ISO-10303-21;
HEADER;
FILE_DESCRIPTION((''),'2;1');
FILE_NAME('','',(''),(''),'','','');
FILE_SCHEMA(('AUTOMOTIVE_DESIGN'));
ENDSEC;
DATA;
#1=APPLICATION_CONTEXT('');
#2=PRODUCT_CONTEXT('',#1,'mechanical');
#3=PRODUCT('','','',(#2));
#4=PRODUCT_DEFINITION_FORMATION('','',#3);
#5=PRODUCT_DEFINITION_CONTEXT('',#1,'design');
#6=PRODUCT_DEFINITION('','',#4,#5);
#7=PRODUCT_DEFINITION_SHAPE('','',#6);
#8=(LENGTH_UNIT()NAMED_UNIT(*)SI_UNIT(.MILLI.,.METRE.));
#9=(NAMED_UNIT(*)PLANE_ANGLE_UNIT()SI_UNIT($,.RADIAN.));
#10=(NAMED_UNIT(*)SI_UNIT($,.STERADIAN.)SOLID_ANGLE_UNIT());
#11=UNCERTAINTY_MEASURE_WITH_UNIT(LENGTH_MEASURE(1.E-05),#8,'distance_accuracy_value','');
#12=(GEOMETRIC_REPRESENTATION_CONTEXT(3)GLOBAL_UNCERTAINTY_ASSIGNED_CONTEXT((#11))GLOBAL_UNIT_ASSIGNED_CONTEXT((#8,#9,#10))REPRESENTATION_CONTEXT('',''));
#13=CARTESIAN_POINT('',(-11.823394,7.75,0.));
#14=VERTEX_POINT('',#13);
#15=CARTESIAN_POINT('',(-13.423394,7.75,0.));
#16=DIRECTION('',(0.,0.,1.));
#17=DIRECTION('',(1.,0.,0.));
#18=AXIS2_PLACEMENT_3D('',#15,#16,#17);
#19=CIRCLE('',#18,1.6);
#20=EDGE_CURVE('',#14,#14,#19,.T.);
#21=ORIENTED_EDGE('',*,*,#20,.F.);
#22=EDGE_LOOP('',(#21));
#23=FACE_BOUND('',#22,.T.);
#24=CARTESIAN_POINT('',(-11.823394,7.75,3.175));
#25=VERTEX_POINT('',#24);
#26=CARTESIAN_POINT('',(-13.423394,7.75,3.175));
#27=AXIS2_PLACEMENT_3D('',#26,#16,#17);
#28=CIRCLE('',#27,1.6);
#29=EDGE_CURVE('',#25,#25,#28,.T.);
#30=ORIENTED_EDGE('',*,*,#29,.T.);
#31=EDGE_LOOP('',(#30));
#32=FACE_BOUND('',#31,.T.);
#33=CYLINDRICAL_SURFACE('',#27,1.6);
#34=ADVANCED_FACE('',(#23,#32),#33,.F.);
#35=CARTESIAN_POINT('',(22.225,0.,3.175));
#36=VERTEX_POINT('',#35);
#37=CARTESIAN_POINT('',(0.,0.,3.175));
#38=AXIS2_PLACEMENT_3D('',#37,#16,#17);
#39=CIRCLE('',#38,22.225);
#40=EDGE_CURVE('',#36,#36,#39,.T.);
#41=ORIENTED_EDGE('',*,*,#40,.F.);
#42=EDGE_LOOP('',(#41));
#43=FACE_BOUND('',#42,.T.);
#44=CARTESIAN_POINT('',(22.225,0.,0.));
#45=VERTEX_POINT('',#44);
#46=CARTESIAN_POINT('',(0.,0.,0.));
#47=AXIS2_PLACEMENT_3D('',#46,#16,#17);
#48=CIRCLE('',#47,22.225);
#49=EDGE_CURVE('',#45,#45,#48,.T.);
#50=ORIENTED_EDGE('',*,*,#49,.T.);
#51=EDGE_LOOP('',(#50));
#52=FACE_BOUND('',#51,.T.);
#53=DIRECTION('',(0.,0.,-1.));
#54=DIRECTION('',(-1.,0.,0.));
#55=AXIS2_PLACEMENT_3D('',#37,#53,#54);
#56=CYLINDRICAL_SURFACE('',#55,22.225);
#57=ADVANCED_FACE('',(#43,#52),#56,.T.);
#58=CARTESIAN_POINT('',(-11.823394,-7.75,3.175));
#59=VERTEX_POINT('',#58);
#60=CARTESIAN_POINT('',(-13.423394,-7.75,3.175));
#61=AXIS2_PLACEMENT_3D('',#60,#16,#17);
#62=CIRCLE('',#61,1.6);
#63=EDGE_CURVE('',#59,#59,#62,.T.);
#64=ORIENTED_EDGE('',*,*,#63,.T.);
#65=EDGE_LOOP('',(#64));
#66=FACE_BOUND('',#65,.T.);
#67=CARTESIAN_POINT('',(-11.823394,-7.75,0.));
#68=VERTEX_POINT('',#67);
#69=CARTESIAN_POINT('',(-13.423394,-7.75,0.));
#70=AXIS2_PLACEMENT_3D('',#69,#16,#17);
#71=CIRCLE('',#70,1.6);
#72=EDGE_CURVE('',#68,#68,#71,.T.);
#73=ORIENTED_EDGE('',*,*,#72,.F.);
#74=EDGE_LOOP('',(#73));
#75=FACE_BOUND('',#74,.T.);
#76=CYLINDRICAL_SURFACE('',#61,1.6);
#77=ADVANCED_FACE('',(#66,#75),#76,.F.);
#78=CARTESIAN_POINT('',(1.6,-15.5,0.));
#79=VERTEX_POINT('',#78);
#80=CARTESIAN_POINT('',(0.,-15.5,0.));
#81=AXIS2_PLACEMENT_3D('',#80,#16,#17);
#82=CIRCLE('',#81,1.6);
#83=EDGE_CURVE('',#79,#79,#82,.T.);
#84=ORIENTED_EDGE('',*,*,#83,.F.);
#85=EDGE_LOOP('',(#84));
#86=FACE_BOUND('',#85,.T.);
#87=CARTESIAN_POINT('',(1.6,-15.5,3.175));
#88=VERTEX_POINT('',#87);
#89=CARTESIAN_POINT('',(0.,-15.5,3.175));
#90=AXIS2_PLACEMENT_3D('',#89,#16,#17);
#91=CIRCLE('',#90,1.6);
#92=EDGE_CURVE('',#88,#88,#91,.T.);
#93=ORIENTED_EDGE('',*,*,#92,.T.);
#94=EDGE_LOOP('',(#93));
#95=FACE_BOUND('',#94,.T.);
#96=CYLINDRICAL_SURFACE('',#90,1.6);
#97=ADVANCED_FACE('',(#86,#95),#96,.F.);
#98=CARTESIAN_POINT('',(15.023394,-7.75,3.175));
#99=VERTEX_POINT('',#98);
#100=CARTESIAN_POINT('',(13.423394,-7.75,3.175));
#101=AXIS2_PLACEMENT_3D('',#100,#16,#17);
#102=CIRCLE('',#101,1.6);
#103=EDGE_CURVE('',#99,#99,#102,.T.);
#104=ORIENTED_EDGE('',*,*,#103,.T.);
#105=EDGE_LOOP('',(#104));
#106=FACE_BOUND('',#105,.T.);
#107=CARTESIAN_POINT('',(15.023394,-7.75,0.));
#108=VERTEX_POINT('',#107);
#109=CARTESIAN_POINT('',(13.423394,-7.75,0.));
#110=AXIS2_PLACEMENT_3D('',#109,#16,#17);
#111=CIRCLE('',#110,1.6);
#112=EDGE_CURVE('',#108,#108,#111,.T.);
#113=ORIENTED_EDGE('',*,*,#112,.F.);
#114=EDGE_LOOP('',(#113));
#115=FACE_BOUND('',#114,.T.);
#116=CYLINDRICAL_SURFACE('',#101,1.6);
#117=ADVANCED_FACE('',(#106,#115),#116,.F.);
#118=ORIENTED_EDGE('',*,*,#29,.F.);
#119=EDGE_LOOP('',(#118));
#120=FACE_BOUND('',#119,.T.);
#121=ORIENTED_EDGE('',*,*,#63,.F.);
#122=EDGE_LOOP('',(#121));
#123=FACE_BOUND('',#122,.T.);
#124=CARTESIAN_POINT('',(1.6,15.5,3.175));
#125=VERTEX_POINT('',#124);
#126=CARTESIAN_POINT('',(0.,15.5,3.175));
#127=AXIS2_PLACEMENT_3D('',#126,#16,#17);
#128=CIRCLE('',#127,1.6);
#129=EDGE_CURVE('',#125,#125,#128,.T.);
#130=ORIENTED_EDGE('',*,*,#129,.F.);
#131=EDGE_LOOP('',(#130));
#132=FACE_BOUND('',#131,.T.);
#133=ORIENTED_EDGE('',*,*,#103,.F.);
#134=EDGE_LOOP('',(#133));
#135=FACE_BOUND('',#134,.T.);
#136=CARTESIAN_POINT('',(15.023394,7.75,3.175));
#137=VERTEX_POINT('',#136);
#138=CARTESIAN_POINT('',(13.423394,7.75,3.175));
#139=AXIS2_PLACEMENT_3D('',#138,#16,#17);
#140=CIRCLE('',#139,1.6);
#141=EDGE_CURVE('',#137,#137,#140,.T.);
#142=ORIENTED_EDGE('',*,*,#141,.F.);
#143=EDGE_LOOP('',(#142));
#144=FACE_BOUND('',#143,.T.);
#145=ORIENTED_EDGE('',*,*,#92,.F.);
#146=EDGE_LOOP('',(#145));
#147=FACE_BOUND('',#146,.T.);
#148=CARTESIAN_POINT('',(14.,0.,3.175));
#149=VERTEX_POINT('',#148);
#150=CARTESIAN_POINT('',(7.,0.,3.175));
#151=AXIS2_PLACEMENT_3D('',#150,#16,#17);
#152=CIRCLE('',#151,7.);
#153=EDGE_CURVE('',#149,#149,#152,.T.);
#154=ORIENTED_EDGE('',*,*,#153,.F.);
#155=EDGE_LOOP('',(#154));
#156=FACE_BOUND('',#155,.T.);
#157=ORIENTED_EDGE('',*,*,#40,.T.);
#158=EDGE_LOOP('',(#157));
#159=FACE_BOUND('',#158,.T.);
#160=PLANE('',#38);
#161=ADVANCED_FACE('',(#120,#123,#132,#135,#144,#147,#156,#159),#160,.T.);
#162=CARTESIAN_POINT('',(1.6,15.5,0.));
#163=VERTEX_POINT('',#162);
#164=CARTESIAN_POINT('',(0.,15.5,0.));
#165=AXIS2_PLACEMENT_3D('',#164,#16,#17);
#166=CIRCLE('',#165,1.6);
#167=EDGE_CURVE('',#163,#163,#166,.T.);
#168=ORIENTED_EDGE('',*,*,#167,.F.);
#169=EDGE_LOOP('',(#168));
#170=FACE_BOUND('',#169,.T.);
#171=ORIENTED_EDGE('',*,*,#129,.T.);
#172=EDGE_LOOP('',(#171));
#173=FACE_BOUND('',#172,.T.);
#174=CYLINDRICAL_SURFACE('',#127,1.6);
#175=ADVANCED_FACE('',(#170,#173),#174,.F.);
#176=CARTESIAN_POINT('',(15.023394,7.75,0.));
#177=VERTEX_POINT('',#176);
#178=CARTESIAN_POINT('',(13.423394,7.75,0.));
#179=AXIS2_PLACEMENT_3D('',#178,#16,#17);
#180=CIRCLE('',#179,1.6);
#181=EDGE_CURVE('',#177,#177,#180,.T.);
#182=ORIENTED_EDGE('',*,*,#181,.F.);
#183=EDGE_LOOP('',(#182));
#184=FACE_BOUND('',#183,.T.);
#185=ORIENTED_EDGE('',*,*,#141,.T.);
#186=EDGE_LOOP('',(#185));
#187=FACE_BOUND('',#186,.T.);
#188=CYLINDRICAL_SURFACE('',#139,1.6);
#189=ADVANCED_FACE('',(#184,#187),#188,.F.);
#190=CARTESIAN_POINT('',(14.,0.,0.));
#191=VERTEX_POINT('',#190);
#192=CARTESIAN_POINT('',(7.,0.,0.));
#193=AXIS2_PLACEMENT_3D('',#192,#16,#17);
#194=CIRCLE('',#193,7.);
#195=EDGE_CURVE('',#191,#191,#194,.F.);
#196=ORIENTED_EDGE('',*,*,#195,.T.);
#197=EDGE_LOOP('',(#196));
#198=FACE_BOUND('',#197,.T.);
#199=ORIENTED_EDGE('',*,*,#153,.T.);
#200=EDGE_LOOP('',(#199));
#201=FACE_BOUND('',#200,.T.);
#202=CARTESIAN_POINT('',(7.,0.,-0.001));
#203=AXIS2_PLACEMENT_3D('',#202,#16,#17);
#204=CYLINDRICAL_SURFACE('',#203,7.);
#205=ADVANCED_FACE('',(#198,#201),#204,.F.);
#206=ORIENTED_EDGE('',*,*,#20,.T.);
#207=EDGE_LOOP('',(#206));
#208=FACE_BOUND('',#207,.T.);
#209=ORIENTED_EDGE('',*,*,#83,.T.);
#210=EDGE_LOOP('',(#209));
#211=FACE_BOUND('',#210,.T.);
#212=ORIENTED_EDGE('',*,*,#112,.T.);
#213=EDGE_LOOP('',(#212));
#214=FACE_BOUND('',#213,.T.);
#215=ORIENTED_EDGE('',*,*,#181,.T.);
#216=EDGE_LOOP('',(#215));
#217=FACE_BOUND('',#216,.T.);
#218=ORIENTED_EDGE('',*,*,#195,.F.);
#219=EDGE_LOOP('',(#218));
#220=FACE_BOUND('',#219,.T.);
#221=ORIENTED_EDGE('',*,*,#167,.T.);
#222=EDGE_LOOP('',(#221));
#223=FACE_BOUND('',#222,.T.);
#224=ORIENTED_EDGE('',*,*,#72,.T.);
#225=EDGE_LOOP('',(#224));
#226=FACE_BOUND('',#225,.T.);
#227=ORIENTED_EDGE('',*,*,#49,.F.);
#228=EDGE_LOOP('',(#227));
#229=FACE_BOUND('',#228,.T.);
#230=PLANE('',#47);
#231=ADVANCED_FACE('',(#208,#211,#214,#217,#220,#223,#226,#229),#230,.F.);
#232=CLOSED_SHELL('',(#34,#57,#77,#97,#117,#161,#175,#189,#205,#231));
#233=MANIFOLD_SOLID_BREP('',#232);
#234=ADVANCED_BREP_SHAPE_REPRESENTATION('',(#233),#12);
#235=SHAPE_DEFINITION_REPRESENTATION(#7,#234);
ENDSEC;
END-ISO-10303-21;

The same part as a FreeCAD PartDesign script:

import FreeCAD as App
import Part
import Sketcher

V = App.Vector

doc = App.newDocument("Part")
params = doc.addObject("Spreadsheet::Sheet", "Params")
for row, (alias, value) in enumerate([
    ("sketch1_diameter", "44.45 mm"),
    ("pad1_length", "3.175 mm"),
    ("sketch2_diameter", "3.2 mm"),
    ("hole_diameter", "3.2 mm"),
    ("hole_depth", "3.175 mm"),
    ("sketch3_diameter", "14 mm"),
], start=1):
    params.set(f"A{row}", alias)
    params.set(f"B{row}", "=" + value)
    params.setAlias(f"B{row}", alias)

body = doc.addObject("PartDesign::Body", "Body")

sketch1 = body.newObject("Sketcher::SketchObject", "Sketch")
sketch1.AttachmentSupport = (doc.getObject("XY_Plane"), [""])
sketch1.MapMode = "FlatFace"
sketch1.addGeometry(Part.Circle(V(0, 0, 0), V(0, 0, 1), 22), False)
sketch1.addConstraint([
    Sketcher.Constraint("Coincident", 0, 3, -1, 1),
    Sketcher.Constraint("Diameter", 0, 44.45),
])
sketch1.setExpression("Constraints[1]", "Params.sketch1_diameter")
pad1 = body.newObject("PartDesign::Pad", "Pad")
pad1.Profile = sketch1
pad1.setExpression("Length", "Params.pad1_length")

sketch2 = body.newObject("Sketcher::SketchObject", "Sketch001")
sketch2.AttachmentSupport = (doc.getObject("XY_Plane"), [""])
sketch2.MapMode = "FlatFace"
sketch2.AttachmentOffset = App.Placement(V(0, 0, 3.175), App.Rotation())
sketch2.addGeometry([
    Part.Circle(V(-13.4, 7.8, 0), V(0, 0, 1), 1.6),
    Part.Circle(V(0, 15.5, 0), V(0, 0, 1), 1.6),
    Part.Circle(V(13.4, 7.8, 0), V(0, 0, 1), 1.6),
    Part.Circle(V(13.4, -7.8, 0), V(0, 0, 1), 1.6),
    Part.Circle(V(0, -15.5, 0), V(0, 0, 1), 1.6),
    Part.Circle(V(-13.4, -7.8, 0), V(0, 0, 1), 1.6),
], False)
sketch2.addConstraint([
    Sketcher.Constraint("Equal", 0, 1),
    Sketcher.Constraint("Equal", 1, 2),
    Sketcher.Constraint("Equal", 2, 3),
    Sketcher.Constraint("Equal", 3, 4),
    Sketcher.Constraint("Equal", 4, 5),
    Sketcher.Constraint("Symmetric", 0, 3, 3, 3, -1, 1),
    Sketcher.Constraint("Symmetric", 1, 3, 4, 3, -1, 1),
    Sketcher.Constraint("Symmetric", 2, 3, 5, 3, -1, 1),
    Sketcher.Constraint("Symmetric", 0, 3, 2, 3, -2),
    Sketcher.Constraint("PointOnObject", 1, 3, -2),
    Sketcher.Constraint("Diameter", 0, 3.2),
    Sketcher.Constraint("DistanceY", 4, 3, 1, 3, 31.0),
    Sketcher.Constraint("DistanceY", 3, 3, 2, 3, 15.5),
    Sketcher.Constraint("DistanceX", 0, 3, -1, 1, 13.423394),
])
sketch2.setExpression("Constraints[10]", "Params.sketch2_diameter")
doc.recompute()
hole = body.newObject("PartDesign::Hole", "Hole")
hole.Profile = sketch2
hole.ThreadType = "None"
hole.setExpression("Diameter", "Params.hole_diameter")
hole.DepthType = "Dimension"
hole.setExpression("Depth", "Params.hole_depth")
hole.DrillPoint = "Flat"

sketch3 = body.newObject("Sketcher::SketchObject", "Sketch002")
sketch3.AttachmentSupport = (doc.getObject("XY_Plane"), [""])
sketch3.MapMode = "FlatFace"
sketch3.AttachmentOffset = App.Placement(V(0, 0, 3.175), App.Rotation())
sketch3.addGeometry(Part.Circle(V(7, 0, 0), V(0, 0, 1), 7), False)
sketch3.addConstraint([
    Sketcher.Constraint("PointOnObject", 0, 3, -1),
    Sketcher.Constraint("Diameter", 0, 14.0),
    Sketcher.Constraint("DistanceX", -1, 1, 0, 3, 7.0),
])
sketch3.setExpression("Constraints[1]", "Params.sketch3_diameter")
pocket1 = body.newObject("PartDesign::Pocket", "Pocket")
pocket1.Profile = sketch3
pocket1.Type = "UpToFirst"

doc.recompute()
